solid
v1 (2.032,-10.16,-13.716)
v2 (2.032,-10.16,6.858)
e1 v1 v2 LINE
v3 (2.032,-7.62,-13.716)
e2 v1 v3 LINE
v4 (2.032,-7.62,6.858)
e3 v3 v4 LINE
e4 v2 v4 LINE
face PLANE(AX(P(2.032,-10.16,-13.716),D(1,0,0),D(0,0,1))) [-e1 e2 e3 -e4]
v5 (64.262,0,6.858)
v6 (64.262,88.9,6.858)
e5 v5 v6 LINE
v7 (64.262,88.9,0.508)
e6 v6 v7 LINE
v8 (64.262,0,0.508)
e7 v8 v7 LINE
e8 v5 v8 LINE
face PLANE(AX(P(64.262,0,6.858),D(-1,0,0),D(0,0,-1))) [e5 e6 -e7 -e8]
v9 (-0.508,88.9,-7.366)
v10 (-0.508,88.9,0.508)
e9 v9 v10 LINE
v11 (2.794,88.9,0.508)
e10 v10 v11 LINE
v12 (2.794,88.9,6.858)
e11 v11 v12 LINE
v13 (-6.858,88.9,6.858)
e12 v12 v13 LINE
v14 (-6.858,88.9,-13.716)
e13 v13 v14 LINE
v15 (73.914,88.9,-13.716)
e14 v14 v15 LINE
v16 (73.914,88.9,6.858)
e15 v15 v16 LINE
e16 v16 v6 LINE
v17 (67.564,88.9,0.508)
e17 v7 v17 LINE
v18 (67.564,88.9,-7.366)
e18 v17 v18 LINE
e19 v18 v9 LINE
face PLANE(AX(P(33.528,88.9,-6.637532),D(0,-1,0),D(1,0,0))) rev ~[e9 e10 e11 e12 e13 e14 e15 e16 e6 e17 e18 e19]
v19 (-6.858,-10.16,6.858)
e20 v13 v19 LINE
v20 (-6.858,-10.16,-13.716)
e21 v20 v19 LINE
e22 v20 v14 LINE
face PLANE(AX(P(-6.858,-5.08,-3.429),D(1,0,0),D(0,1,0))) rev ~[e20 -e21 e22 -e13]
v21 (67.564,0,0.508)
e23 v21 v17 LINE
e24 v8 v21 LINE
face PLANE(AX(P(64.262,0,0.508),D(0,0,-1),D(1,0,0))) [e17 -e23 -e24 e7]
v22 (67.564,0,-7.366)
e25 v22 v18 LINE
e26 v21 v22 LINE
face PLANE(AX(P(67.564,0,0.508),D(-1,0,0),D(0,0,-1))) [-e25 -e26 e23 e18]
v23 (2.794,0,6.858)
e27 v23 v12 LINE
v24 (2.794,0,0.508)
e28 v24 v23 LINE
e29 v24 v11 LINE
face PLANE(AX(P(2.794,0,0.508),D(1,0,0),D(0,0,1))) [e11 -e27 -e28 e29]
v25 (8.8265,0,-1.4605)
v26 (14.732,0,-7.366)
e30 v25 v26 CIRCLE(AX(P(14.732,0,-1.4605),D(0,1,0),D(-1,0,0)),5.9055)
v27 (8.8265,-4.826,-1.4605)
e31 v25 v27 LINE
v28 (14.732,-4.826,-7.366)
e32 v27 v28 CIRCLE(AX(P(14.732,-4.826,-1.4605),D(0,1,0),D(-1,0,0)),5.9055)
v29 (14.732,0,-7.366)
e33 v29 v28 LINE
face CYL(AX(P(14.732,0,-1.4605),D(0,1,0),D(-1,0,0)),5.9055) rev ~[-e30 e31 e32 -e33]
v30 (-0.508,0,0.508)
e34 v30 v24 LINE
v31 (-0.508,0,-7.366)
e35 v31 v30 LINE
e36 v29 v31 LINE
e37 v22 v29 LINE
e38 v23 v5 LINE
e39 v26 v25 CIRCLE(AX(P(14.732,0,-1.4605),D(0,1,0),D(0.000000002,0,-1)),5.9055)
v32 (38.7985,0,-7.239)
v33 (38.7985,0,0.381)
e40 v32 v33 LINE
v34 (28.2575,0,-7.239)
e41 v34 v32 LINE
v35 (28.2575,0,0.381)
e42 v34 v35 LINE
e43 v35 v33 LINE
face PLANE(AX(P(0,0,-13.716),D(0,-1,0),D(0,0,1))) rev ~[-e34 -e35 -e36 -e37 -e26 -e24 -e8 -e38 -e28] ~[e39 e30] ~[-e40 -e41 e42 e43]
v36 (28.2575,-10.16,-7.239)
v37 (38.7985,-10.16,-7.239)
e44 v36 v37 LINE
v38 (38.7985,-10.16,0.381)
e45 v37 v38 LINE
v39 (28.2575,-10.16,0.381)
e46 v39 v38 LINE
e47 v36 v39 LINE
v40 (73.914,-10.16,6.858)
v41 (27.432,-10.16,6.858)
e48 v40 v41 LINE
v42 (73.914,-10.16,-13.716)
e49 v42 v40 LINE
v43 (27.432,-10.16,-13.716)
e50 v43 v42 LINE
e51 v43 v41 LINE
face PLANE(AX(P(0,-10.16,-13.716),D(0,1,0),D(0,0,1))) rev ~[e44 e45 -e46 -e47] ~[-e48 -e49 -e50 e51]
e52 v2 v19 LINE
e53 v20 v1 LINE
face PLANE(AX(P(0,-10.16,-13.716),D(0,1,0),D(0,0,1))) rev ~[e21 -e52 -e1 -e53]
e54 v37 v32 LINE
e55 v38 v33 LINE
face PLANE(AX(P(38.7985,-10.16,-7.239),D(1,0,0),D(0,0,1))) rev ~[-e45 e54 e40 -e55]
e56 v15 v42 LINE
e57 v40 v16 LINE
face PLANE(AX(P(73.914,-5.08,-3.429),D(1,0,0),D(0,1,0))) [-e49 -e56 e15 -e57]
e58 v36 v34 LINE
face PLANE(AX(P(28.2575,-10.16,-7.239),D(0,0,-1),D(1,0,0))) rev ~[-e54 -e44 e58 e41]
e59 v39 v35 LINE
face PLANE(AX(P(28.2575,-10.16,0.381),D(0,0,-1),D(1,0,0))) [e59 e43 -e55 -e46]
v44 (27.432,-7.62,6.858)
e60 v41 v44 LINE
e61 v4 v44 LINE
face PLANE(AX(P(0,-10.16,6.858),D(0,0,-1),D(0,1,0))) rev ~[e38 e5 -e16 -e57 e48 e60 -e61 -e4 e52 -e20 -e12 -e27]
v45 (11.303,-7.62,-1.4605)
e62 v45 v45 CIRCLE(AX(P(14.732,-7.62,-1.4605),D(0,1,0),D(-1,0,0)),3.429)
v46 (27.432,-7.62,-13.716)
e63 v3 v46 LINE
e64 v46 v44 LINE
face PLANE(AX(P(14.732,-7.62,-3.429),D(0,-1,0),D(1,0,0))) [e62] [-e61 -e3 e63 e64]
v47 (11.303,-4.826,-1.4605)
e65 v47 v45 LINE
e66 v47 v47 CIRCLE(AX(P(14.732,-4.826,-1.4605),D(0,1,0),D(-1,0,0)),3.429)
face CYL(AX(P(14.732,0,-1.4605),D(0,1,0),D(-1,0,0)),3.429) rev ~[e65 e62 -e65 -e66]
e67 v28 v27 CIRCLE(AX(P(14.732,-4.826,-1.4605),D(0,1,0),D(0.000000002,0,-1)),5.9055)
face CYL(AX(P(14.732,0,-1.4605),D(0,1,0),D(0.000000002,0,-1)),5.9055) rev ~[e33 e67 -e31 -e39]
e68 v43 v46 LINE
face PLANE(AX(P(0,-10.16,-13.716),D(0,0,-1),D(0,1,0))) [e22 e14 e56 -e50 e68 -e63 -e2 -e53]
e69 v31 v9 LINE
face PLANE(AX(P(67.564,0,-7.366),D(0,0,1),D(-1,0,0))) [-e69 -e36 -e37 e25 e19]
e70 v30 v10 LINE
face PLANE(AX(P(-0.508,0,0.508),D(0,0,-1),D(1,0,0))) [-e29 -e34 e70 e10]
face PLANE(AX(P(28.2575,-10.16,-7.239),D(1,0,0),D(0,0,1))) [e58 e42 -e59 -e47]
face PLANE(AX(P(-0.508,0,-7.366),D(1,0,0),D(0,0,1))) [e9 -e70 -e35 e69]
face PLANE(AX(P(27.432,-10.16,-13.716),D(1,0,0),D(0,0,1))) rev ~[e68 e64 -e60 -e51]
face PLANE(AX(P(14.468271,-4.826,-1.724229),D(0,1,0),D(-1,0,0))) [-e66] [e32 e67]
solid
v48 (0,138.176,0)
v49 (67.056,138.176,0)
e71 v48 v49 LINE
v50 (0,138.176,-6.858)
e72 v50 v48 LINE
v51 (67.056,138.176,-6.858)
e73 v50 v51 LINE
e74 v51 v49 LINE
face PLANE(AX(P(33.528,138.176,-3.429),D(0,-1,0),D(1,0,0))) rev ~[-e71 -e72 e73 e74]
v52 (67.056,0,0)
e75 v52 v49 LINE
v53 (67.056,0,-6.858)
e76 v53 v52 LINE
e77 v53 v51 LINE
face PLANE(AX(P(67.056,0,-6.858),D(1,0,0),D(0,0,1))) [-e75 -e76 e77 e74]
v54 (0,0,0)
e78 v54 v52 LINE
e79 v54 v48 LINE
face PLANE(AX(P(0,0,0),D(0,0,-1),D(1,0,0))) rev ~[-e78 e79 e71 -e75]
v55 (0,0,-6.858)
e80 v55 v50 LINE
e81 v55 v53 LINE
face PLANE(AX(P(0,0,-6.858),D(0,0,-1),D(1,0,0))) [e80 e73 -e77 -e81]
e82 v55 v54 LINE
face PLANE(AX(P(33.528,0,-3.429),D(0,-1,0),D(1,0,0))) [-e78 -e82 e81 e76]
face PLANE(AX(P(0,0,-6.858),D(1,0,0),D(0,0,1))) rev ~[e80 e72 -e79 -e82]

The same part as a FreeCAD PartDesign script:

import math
import FreeCAD as App
import Part
import Sketcher
Q = App.Units.Quantity


def add_polygon(sketch, points):
    """Adds a closed chain of lines whose ends are joined by coincident constraints."""
    first, n = sketch.GeometryCount, len(points)
    for a, b in zip(points, points[1:] + points[:1]):
        sketch.addGeometry(Part.LineSegment(App.Vector(*a, 0), App.Vector(*b, 0)), False)
    for i in range(n):
        sketch.addConstraint(Sketcher.Constraint("Coincident", first + i, 2, first + (i + 1) % n, 1))

doc = App.newDocument("Part")
body = doc.addObject("PartDesign::Body", "Body")

# Sketch on XZ plane
sketch1 = doc.addObject("Sketcher::SketchObject", "Sketch")
body.addObject(sketch1)
sketch1.AttachmentSupport = (doc.XZ_Plane, [""])
sketch1.MapMode = "FlatFace"
add_polygon(sketch1, [(0, 0), (0, -7), (67, -7), (67, 0)])  # lines 0-3
sketch1.addConstraint([
    Sketcher.Constraint("Vertical", 0),
    Sketcher.Constraint("Horizontal", 1),
    Sketcher.Constraint("Vertical", 2),
    Sketcher.Constraint("Horizontal", 3),
    Sketcher.Constraint("Coincident", 3, 2, -1, 1),
    Sketcher.Constraint("DistanceX", 1, 1, 1, 2, Q("2.64 in")),
    Sketcher.Constraint("DistanceY", 0, 2, 0, 1, Q("0.27 in")),
])
pad1 = doc.addObject("PartDesign::Pad", "Pad")
body.addObject(pad1)
pad1.Profile = sketch1
pad1.Length = Q("5.44 in")
pad1.Reversed = True
body2 = doc.addObject("PartDesign::Body", "Body001")

# Sketch on XZ plane
sketch2 = doc.addObject("Sketcher::SketchObject", "Sketch001")
body2.addObject(sketch2)
sketch2.AttachmentSupport = (doc.getObject("XZ_Plane001"), [""])
sketch2.MapMode = "FlatFace"
add_polygon(sketch2, [(-0.5, -7.4), (-0.5, 0.5), (2.8, 0.5), (2.8, 6.9), (-6.9, 6.9), (-6.9, -13.7), (73.9, -13.7), (73.9, 6.9), (64.3, 6.9), (64.3, 0.5), (67.6, 0.5), (67.6, -7.4)])  # lines 0-11
sketch2.addConstraint([
    Sketcher.Constraint("Vertical", 0),
    Sketcher.Constraint("Horizontal", 1),
    Sketcher.Constraint("Vertical", 2),
    Sketcher.Constraint("Horizontal", 3),
    Sketcher.Constraint("Vertical", 4),
    Sketcher.Constraint("Horizontal", 5),
    Sketcher.Constraint("Vertical", 6),
    Sketcher.Constraint("Horizontal", 7),
    Sketcher.Constraint("Vertical", 8),
    Sketcher.Constraint("Horizontal", 9),
    Sketcher.Constraint("Vertical", 10),
    Sketcher.Constraint("Horizontal", 11),
    Sketcher.Constraint("Horizontal", 3, 2, 6, 2),
    Sketcher.Constraint("Horizontal", 1, 2, 8, 2),
    Sketcher.Constraint("Equal", 3, 7),
    Sketcher.Constraint("Equal", 1, 9),
    Sketcher.Constraint("DistanceX", 1, 1, 1, 2, Q("0.13 in")),
    Sketcher.Constraint("DistanceX", 3, 2, 3, 1, Q("0.38 in")),
    Sketcher.Constraint("DistanceX", 5, 1, 5, 2, Q("3.18 in")),
    Sketcher.Constraint("DistanceY", 0, 1, 0, 2, Q("0.31 in")),
    Sketcher.Constraint("DistanceY", 2, 1, 2, 2, Q("0.25 in")),
    Sketcher.Constraint("DistanceY", 4, 2, 4, 1, Q("0.81 in")),
    Sketcher.Constraint("DistanceX", 0, 2, -1, 1, Q("0.02 in")),
    Sketcher.Constraint("DistanceY", -1, 1, 0, 2, Q("0.02 in")),
])
pad2 = doc.addObject("PartDesign::Pad", "Pad001")
body2.addObject(pad2)
pad2.Profile = sketch2
pad2.Length = Q("3.5 in")
pad2.Reversed = True

# Sketch on YZ plane
sketch3 = doc.addObject("Sketcher::SketchObject", "Sketch002")
body2.addObject(sketch3)
sketch3.AttachmentSupport = (doc.getObject("YZ_Plane001"), [""])
sketch3.MapMode = "FlatFace"
add_polygon(sketch3, [(-10, 7), (-10, -14), (0, -14), (0, 7)])  # lines 0-3
sketch3.addConstraint([
    Sketcher.Constraint("Vertical", 0),
    Sketcher.Constraint("Horizontal", 1),
    Sketcher.Constraint("Vertical", 2),
    Sketcher.Constraint("Horizontal", 3),
    Sketcher.Constraint("PointOnObject", 1, 2, -2),
    Sketcher.Constraint("DistanceX", 1, 1, 1, 2, Q("0.4 in")),
    Sketcher.Constraint("DistanceY", 0, 2, 0, 1, Q("0.81 in")),
    Sketcher.Constraint("DistanceY", 0, 2, -1, 1, Q("0.54 in")),
])
pad3 = doc.addObject("PartDesign::Pad", "Pad002")
body2.addObject(pad3)
pad3.Profile = sketch3
pad3.Type = "TwoLengths"
pad3.Length = Q("2.91 in")
pad3.Length2 = Q("0.27 in")

# Sketch on XZ plane
sketch4 = doc.addObject("Sketcher::SketchObject", "Sketch003")
body2.addObject(sketch4)
sketch4.AttachmentSupport = (doc.getObject("XZ_Plane001"), [""])
sketch4.MapMode = "FlatFace"
sketch4.AttachmentOffset = App.Placement(App.Vector(0, 0, 0.4 * 25.4), App.Rotation())
add_polygon(sketch4, [(28, 0), (28, -7), (39, -7), (39, 0)])  # lines 0-3
sketch4.addConstraint([
    Sketcher.Constraint("Vertical", 0),
    Sketcher.Constraint("Horizontal", 1),
    Sketcher.Constraint("Vertical", 2),
    Sketcher.Constraint("Horizontal", 3),
    Sketcher.Constraint("DistanceY", 0, 2, 0, 1, Q("0.3 in")),
    Sketcher.Constraint("DistanceX", 1, 1, 1, 2, Q("0.415 in")),
    Sketcher.Constraint("DistanceY", 0, 2, -1, 1, Q("0.285 in")),
    Sketcher.Constraint("DistanceX", -1, 1, 0, 2, Q("1.1125 in")),
])
pocket1 = doc.addObject("PartDesign::Pocket", "Pocket")
body2.addObject(pocket1)
pocket1.Profile = sketch4
pocket1.Type = "ThroughAll"

# Sketch on XZ plane
sketch5 = doc.addObject("Sketcher::SketchObject", "Sketch004")
body2.addObject(sketch5)
sketch5.AttachmentSupport = (doc.getObject("XZ_Plane001"), [""])
sketch5.MapMode = "FlatFace"
sketch5.addGeometry(Part.Circle(App.Vector(14.7, -1.5, 0), App.Vector(0, 0, 1), 3.4), False)
sketch5.addConstraint([
    Sketcher.Constraint("Diameter", 0, Q("0.27 in")),
    Sketcher.Constraint("DistanceX", -1, 1, 0, 3, Q("0.58 in")),
    Sketcher.Constraint("DistanceY", 0, 3, -1, 1, Q("0.0575 in")),
])
pocket2 = doc.addObject("PartDesign::Pocket", "Pocket001")
body2.addObject(pocket2)
pocket2.Profile = sketch5
pocket2.Type = "ThroughAll"
pocket2.Reversed = True

# Sketch on XZ plane
sketch6 = doc.addObject("Sketcher::SketchObject", "Sketch005")
body2.addObject(sketch6)
sketch6.AttachmentSupport = (doc.getObject("XZ_Plane001"), [""])
sketch6.MapMode = "FlatFace"
sketch6.addGeometry([
    Part.ArcOfCircle(Part.Circle(App.Vector(14.7, -1.5, 0), App.Vector(0, 0, 1), 5.9), math.radians(180), math.radians(270)),
    Part.ArcOfCircle(Part.Circle(App.Vector(14.7, -1.5, 0), App.Vector(0, 0, 1), 5.9), math.radians(-90), math.radians(180)),
    Part.Circle(App.Vector(14.7, -1.5, 0), App.Vector(0, 0, 1), 3.4),
], False)
sketch6.addConstraint([
    Sketcher.Constraint("Tangent", 0, 1, 1, 2),
    Sketcher.Constraint("Coincident", 1, 1, 0, 2),
    Sketcher.Constraint("Coincident", 2, 3, 0, 3),
    Sketcher.Constraint("Horizontal", 2, 3, 0, 1),
    Sketcher.Constraint("Vertical", 2, 3, 1, 1),
    Sketcher.Constraint("Diameter", 2, Q("0.27 in")),
    Sketcher.Constraint("Radius", 0, Q("0.2325 in")),
    Sketcher.Constraint("DistanceX", -1, 1, 0, 3, Q("0.58 in")),
    Sketcher.Constraint("DistanceY", 1, 1, -1, 1, Q("0.29 in")),
])
pocket3 = doc.addObject("PartDesign::Pocket", "Pocket002")
body2.addObject(pocket3)
pocket3.Profile = sketch6
pocket3.Length = Q("0.19 in")
pocket3.Reversed = True

# Sketch on XZ plane
sketch7 = doc.addObject("Sketcher::SketchObject", "Sketch006")
body2.addObject(sketch7)
sketch7.AttachmentSupport = (doc.getObject("XZ_Plane001"), [""])
sketch7.MapMode = "FlatFace"
sketch7.AttachmentOffset = App.Placement(App.Vector(0, 0, 0.4 * 25.4), App.Rotation())
add_polygon(sketch7, [(2, 6.9), (2, -13.7), (27.4, -13.7), (27.4, 6.9)])  # lines 0-3
sketch7.addGeometry(Part.Circle(App.Vector(14.7, -1.5, 0), App.Vector(0, 0, 1), 3.4), False)  # 4
sketch7.addConstraint([
    Sketcher.Constraint("Vertical", 0),
    Sketcher.Constraint("Horizontal", 1),
    Sketcher.Constraint("Vertical", 2),
    Sketcher.Constraint("Horizontal", 3),
    Sketcher.Constraint("Diameter", 4, Q("0.27 in")),
    Sketcher.Constraint("DistanceX", 1, 1, 1, 2, Q("1 in")),
    Sketcher.Constraint("DistanceY", 0, 2, 0, 1, Q("0.81 in")),
    Sketcher.Constraint("DistanceX", 0, 2, 4, 3, Q("0.5 in")),
    Sketcher.Constraint("DistanceX", -1, 1, 4, 3, Q("0.58 in")),
    Sketcher.Constraint("DistanceY", 0, 2, -1, 1, Q("0.54 in")),
    Sketcher.Constraint("DistanceY", 4, 3, -1, 1, Q("0.0575 in")),
])
pocket4 = doc.addObject("PartDesign::Pocket", "Pocket003")
body2.addObject(pocket4)
pocket4.Profile = sketch7
pocket4.Length = Q("0.1 in")

doc.recompute()
